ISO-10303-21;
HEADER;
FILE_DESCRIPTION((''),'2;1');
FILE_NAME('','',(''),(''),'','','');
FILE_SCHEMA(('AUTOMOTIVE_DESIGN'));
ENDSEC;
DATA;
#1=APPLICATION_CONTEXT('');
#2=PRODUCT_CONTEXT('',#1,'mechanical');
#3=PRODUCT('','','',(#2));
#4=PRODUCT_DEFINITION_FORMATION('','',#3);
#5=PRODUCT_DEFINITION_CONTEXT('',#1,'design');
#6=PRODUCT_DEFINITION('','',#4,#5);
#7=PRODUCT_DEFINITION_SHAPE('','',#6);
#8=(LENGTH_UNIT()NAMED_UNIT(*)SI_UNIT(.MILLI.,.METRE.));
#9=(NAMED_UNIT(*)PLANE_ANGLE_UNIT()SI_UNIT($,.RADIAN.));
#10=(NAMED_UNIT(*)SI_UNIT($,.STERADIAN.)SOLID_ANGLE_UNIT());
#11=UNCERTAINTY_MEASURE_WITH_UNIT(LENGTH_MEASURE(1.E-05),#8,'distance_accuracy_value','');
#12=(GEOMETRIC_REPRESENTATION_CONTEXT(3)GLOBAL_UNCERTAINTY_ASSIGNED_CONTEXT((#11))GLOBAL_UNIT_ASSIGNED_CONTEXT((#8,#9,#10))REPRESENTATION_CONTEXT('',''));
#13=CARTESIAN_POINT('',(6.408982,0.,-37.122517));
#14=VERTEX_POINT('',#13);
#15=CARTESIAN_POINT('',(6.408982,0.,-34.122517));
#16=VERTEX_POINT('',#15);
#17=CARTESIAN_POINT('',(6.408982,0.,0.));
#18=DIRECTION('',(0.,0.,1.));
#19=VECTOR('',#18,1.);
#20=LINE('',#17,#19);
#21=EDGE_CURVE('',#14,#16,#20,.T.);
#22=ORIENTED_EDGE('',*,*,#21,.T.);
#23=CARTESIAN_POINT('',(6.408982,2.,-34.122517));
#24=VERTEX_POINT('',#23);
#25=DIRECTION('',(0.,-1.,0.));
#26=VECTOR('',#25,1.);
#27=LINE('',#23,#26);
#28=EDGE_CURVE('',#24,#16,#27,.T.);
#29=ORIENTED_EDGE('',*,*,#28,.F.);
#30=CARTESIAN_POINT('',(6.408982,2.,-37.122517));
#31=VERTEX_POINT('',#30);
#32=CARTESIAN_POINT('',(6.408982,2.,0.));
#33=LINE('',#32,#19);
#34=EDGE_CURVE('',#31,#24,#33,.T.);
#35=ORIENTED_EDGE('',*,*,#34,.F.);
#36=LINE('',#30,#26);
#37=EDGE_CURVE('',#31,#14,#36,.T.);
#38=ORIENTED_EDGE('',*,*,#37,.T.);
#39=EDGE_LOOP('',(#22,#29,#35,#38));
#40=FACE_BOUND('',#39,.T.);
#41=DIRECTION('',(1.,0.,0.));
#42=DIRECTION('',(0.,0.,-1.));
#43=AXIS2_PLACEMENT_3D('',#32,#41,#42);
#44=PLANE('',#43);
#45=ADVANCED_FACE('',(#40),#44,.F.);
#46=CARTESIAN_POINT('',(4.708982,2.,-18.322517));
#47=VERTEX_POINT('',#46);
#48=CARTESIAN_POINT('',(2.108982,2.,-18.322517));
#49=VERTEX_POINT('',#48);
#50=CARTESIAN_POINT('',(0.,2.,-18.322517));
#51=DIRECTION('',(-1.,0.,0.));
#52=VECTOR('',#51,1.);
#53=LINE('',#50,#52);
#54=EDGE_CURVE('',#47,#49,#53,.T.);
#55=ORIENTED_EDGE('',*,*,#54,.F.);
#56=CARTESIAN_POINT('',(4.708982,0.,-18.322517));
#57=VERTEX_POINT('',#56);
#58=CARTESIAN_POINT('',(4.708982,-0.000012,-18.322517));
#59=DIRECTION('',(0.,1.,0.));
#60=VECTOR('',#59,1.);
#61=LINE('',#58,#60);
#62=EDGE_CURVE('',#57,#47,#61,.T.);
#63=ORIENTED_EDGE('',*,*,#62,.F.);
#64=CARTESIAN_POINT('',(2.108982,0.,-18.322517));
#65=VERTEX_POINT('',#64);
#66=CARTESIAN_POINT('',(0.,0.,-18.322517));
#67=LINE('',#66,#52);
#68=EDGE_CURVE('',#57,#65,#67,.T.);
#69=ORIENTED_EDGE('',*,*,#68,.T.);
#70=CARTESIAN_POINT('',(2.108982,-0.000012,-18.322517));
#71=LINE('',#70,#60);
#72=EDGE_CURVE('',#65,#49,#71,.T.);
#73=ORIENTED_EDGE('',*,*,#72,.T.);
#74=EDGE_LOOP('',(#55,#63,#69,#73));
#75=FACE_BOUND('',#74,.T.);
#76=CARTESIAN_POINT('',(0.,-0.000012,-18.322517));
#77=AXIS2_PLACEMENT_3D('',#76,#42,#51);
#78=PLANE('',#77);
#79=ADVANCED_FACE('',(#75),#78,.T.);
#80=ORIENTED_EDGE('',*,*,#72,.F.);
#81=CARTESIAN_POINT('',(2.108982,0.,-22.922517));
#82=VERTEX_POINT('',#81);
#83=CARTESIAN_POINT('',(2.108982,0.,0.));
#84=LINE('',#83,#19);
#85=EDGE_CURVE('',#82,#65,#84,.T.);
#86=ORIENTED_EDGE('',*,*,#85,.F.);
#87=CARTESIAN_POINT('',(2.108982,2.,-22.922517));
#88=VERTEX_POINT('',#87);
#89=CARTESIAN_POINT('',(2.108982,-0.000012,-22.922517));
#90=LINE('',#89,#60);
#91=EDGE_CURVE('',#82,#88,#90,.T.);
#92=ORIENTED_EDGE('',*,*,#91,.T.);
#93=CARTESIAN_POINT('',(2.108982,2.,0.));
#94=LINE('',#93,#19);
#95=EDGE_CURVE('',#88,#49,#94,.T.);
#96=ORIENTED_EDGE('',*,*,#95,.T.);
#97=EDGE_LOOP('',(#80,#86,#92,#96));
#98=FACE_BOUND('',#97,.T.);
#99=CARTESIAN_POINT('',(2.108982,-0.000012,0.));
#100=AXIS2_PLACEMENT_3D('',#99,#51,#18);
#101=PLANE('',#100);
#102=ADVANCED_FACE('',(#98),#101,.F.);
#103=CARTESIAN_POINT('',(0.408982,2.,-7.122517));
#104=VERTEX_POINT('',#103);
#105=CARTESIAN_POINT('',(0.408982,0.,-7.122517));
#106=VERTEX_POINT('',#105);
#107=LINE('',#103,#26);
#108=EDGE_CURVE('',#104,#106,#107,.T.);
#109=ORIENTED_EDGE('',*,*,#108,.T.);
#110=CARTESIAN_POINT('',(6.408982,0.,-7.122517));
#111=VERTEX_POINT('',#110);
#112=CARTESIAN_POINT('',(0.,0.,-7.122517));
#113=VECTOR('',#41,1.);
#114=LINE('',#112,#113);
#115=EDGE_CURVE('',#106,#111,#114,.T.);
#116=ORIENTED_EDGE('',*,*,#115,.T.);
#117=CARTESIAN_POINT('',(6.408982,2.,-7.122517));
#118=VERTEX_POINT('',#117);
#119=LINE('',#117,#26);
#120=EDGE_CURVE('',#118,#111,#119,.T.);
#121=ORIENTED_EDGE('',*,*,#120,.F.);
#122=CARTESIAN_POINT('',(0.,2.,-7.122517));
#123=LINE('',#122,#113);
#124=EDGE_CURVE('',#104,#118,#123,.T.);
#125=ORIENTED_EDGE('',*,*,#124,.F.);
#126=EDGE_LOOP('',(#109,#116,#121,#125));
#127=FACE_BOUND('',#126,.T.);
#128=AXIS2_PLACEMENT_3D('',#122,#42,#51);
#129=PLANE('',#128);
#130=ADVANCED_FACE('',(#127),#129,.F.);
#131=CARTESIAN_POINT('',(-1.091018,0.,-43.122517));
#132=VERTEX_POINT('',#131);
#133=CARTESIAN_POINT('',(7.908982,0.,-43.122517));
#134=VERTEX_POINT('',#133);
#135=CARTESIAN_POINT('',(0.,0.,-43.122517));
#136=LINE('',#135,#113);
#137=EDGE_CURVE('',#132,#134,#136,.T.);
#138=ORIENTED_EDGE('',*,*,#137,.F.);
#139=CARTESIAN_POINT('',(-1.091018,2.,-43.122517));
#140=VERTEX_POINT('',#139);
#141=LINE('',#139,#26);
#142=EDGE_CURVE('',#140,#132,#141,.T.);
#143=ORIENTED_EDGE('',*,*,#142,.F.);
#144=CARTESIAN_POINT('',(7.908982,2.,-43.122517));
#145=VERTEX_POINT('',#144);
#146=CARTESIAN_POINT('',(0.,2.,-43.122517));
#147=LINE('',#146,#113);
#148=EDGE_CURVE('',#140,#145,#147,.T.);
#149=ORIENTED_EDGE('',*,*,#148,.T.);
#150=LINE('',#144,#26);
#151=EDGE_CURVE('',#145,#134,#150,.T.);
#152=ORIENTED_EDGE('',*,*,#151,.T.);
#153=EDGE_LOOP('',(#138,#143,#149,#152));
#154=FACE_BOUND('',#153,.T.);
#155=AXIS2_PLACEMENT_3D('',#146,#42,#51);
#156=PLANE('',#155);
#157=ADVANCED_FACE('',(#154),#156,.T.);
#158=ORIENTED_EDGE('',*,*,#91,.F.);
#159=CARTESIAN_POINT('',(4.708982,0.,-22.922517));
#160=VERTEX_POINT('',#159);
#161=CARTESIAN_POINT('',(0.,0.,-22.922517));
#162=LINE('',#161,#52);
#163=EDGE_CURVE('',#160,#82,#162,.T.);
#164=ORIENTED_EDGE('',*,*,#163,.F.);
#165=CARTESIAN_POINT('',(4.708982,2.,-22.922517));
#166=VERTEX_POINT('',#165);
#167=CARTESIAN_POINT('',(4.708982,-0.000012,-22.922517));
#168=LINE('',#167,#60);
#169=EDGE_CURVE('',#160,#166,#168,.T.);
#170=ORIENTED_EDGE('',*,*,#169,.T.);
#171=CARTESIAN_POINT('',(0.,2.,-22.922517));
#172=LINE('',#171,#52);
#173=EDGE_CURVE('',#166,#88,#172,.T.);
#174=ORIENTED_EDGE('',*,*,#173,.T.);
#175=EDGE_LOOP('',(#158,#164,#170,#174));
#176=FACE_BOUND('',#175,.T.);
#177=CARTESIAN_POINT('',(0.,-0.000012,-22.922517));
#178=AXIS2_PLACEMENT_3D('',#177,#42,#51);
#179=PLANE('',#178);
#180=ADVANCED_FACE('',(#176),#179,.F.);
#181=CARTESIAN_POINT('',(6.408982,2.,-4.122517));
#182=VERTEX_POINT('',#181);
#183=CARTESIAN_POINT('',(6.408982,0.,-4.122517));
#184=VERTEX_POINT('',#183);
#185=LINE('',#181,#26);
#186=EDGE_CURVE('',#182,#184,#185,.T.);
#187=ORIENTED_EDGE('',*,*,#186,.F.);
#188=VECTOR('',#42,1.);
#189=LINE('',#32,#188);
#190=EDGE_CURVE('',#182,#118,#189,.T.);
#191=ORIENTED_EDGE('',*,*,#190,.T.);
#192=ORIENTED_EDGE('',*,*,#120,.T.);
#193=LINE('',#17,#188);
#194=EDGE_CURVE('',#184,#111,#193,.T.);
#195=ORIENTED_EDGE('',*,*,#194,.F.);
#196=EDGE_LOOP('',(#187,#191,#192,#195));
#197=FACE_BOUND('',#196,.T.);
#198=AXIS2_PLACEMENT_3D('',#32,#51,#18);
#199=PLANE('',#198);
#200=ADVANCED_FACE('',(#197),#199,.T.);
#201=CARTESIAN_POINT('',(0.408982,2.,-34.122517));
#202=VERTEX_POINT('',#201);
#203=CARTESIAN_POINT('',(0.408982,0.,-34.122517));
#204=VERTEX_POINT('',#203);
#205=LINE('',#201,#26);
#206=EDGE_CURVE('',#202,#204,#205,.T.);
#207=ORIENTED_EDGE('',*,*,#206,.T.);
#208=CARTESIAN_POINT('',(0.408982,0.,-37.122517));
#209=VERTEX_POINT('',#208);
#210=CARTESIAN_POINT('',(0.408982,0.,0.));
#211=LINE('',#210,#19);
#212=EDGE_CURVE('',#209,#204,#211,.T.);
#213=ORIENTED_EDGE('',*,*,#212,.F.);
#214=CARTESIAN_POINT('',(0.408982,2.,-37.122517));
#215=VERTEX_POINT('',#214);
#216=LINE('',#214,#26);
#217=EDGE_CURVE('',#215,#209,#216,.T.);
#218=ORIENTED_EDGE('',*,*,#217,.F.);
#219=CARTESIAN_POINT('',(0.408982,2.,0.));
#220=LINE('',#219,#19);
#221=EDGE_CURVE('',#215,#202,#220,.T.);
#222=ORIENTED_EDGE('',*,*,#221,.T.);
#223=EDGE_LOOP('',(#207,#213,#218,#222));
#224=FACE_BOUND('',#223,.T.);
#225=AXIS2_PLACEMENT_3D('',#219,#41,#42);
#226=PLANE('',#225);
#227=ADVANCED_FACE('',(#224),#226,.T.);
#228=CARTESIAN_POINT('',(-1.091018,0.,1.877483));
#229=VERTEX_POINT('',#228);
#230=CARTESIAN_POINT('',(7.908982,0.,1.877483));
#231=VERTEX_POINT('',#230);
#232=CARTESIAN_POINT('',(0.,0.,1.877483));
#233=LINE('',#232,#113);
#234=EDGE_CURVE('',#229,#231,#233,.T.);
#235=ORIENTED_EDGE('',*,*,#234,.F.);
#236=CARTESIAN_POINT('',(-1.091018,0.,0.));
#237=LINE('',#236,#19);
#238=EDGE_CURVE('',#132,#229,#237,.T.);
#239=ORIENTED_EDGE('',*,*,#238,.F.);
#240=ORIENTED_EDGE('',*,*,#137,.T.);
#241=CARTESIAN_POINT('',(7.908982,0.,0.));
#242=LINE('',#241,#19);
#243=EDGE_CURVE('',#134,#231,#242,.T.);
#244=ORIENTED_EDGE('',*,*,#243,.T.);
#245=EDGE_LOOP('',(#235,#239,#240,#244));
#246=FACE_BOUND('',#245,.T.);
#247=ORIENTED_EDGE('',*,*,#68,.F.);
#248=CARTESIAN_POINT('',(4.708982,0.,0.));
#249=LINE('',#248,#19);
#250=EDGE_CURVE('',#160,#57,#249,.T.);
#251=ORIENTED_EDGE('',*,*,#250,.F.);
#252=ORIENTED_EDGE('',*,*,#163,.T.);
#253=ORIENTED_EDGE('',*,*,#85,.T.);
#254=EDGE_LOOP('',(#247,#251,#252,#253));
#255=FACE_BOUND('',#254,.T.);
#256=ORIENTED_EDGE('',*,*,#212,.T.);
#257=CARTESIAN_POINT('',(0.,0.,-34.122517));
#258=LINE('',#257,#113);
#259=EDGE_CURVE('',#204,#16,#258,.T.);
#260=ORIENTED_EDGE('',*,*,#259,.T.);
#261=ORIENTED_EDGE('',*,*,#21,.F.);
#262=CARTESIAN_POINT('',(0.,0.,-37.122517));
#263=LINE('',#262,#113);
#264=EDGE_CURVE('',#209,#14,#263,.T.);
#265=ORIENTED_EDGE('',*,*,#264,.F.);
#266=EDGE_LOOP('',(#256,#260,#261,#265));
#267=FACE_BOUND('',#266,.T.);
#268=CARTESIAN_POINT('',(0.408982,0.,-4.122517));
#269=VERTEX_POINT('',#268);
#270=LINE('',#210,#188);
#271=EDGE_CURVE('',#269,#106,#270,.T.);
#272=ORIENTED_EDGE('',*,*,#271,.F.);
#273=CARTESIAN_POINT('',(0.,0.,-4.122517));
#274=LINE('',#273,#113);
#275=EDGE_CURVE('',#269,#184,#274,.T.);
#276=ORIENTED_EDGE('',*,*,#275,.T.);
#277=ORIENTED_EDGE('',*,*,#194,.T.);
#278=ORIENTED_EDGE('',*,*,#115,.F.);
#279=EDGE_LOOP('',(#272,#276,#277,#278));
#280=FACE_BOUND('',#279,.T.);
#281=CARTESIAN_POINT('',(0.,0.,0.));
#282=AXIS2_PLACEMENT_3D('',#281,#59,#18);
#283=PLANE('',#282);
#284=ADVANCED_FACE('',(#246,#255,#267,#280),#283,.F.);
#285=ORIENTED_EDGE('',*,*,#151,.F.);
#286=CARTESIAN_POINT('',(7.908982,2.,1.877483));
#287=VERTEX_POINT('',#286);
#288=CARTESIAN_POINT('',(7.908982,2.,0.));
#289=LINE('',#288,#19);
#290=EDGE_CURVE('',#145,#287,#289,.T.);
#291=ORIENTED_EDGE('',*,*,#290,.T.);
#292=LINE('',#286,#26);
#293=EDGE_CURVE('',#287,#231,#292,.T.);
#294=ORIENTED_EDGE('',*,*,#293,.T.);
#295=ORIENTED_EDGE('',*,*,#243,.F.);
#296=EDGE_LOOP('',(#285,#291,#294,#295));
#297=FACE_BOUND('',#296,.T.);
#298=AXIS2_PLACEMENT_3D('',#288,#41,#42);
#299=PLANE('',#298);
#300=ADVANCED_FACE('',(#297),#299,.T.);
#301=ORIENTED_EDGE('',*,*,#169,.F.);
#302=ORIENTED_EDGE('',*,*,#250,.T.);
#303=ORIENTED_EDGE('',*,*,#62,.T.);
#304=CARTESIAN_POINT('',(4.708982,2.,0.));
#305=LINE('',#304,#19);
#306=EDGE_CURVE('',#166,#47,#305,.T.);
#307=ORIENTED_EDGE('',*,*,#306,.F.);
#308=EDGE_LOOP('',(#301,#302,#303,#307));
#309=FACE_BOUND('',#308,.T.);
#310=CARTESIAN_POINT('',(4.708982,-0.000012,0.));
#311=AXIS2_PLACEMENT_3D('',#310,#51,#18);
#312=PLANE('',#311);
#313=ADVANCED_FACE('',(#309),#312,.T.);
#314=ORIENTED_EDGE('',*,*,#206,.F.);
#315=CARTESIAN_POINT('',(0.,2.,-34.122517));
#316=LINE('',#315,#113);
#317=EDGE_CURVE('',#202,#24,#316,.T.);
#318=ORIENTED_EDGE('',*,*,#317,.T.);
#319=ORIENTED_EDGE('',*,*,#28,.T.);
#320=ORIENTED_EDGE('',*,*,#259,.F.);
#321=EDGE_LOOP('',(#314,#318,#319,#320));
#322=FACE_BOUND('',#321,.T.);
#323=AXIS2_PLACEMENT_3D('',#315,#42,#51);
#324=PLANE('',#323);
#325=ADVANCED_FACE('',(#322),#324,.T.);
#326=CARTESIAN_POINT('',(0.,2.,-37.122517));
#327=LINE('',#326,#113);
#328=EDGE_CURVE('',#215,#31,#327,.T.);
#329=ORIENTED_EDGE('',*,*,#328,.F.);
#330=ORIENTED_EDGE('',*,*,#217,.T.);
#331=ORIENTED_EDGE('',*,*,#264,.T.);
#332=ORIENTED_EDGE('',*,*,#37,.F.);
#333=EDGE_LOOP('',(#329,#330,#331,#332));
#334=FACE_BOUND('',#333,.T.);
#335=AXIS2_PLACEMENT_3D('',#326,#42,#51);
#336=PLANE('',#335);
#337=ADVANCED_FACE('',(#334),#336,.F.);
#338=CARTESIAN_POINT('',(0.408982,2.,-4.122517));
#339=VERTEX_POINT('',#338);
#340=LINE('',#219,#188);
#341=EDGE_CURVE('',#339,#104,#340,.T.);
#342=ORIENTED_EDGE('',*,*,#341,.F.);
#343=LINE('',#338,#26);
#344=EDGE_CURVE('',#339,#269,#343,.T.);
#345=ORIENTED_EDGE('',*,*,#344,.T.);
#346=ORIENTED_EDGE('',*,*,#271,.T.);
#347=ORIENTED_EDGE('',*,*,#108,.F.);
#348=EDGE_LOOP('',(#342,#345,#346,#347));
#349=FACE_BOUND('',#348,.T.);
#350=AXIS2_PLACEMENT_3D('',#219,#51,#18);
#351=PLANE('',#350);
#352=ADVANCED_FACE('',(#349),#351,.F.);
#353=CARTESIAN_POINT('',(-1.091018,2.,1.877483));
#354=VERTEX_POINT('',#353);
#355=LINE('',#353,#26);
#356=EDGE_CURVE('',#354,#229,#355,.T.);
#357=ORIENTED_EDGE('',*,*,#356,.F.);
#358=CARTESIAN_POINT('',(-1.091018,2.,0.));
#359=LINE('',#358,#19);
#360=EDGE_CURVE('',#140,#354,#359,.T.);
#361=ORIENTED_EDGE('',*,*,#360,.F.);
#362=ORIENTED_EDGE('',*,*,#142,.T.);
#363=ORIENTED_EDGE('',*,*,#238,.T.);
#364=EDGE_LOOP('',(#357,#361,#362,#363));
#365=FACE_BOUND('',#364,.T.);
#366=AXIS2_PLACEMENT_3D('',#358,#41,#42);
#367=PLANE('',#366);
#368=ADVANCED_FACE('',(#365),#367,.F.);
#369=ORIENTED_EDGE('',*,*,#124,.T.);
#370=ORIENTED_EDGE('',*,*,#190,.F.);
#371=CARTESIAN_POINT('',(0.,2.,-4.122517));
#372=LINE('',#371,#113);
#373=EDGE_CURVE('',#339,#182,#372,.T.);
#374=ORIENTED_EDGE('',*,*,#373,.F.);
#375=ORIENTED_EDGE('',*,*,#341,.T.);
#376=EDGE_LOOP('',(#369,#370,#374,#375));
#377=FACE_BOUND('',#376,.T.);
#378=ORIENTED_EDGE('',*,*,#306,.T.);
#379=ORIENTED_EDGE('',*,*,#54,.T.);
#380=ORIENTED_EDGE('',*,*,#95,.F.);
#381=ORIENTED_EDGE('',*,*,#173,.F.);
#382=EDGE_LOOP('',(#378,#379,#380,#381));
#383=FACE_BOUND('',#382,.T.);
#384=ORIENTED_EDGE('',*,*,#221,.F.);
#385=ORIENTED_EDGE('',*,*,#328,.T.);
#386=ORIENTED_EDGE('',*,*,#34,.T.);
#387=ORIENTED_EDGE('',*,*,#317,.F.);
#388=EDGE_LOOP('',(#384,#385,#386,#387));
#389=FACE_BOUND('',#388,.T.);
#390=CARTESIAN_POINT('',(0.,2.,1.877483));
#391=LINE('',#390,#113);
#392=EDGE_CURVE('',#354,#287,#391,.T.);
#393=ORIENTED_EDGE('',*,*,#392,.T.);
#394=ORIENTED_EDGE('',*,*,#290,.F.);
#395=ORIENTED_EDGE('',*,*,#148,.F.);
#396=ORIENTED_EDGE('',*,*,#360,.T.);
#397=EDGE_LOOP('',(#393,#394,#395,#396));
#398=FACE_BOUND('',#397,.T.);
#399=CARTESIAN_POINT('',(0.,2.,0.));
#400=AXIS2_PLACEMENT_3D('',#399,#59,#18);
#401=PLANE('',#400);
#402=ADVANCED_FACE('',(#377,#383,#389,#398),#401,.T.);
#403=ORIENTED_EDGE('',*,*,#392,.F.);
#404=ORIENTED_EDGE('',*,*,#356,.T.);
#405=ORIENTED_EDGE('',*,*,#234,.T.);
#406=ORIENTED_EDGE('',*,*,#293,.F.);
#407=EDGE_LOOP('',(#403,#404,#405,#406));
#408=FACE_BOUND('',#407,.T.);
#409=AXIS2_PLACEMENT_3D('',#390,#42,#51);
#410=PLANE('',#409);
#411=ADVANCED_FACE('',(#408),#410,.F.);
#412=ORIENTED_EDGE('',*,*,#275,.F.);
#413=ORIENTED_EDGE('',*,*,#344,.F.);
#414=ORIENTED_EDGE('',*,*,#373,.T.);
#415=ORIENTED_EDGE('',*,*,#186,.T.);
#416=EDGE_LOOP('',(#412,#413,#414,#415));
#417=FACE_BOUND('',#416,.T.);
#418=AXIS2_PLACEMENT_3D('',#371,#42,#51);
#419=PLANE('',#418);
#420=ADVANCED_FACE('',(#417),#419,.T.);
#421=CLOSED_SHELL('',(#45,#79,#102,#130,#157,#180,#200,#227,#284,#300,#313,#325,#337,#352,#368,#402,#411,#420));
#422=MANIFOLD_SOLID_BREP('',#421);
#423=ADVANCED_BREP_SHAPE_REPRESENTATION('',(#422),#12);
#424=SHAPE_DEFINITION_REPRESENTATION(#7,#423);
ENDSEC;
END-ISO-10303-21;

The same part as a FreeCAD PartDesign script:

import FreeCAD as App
import Part
import Sketcher
Q = App.Units.Quantity


def add_polygon(sketch, points):
    """Adds a closed chain of lines whose ends are joined by coincident constraints."""
    first, n = sketch.GeometryCount, len(points)
    for a, b in zip(points, points[1:] + points[:1]):
        sketch.addGeometry(Part.LineSegment(App.Vector(*a, 0), App.Vector(*b, 0)), False)
    for i in range(n):
        sketch.addConstraint(Sketcher.Constraint("Coincident", first + i, 2, first + (i + 1) % n, 1))

doc = App.newDocument("Part")
params = doc.addObject("Spreadsheet::Sheet", "Params")
for row, (alias, value) in enumerate([
    ("sketch1_width", "9 mm"),
    ("sketch1_width2", "6 mm"),
    ("sketch1_height", "45 mm"),
    ("sketch1_height2", "3 mm"),
    ("pad1_length", "2 mm"),
    ("sketch2_width", "2.6 mm"),
    ("sketch2_height", "4.6 mm"),
], start=1):
    params.set(f"A{row}", alias)
    params.set(f"B{row}", "=" + value)
    params.setAlias(f"B{row}", alias)

body = doc.addObject("PartDesign::Body", "Body")

# Sketch on XZ plane
sketch1 = body.newObject("Sketcher::SketchObject", "Sketch")
sketch1.AttachmentSupport = (doc.getObject("XZ_Plane"), [""])
sketch1.MapMode = "FlatFace"
add_polygon(sketch1, [(-1.1, -43.1), (-1.1, 1.9), (7.9, 1.9), (7.9, -43.1)])  # lines 0-3
add_polygon(sketch1, [(6.4, -4.1), (0.4, -4.1), (0.4, -7.1), (6.4, -7.1)])  # lines 4-7
add_polygon(sketch1, [(6.4, -34.1), (0.4, -34.1), (0.4, -37.1), (6.4, -37.1)])  # lines 8-11
sketch1.addConstraint([
    Sketcher.Constraint("Vertical", 0),
    Sketcher.Constraint("Horizontal", 1),
    Sketcher.Constraint("Vertical", 2),
    Sketcher.Constraint("Horizontal", 3),
    Sketcher.Constraint("Horizontal", 4),
    Sketcher.Constraint("Vertical", 5),
    Sketcher.Constraint("Horizontal", 6),
    Sketcher.Constraint("Vertical", 7),
    Sketcher.Constraint("Horizontal", 8),
    Sketcher.Constraint("Vertical", 9),
    Sketcher.Constraint("Horizontal", 10),
    Sketcher.Constraint("Vertical", 11),
    Sketcher.Constraint("Vertical", 5, 2, 8, 2),
    Sketcher.Constraint("Vertical", 7, 2, 10, 2),
    Sketcher.Constraint("Equal", 7, 9),
    Sketcher.Constraint("DistanceX", 1, 1, 1, 2, Q("9 mm")),
    Sketcher.Constraint("DistanceX", 4, 2, 4, 1, Q("6 mm")),
    Sketcher.Constraint("DistanceY", 0, 1, 0, 2, Q("45 mm")),
    Sketcher.Constraint("DistanceY", 5, 2, 5, 1, Q("3 mm")),
    Sketcher.Constraint("DistanceY", 4, 2, 0, 2, Q("6 mm")),
    Sketcher.Constraint("DistanceY", 3, 2, 8, 2, Q("9 mm")),
    Sketcher.Constraint("DistanceX", 0, 2, 4, 2, Q("1.5 mm")),
    Sketcher.Constraint("DistanceX", 0, 2, -1, 1, Q("1.091018 mm")),
    Sketcher.Constraint("DistanceY", -1, 1, 0, 2, Q("1.877483 mm")),
])
sketch1.setExpression("Constraints[27]", "Params.sketch1_width")
sketch1.setExpression("Constraints[28]", "Params.sketch1_width2")
sketch1.setExpression("Constraints[29]", "Params.sketch1_height")
sketch1.setExpression("Constraints[30]", "Params.sketch1_height2")
pad1 = body.newObject("PartDesign::Pad", "Pad")
pad1.Profile = sketch1
pad1.setExpression("Length", "Params.pad1_length")
pad1.Reversed = True

# Sketch on XZ plane
sketch2 = body.newObject("Sketcher::SketchObject", "Sketch001")
sketch2.AttachmentSupport = (doc.getObject("XZ_Plane"), [""])
sketch2.MapMode = "FlatFace"
add_polygon(sketch2, [(2.1, -18.3), (2.1, -22.9), (4.7, -22.9), (4.7, -18.3)])  # lines 0-3
sketch2.addConstraint([
    Sketcher.Constraint("Vertical", 0),
    Sketcher.Constraint("Horizontal", 1),
    Sketcher.Constraint("Vertical", 2),
    Sketcher.Constraint("Horizontal", 3),
    Sketcher.Constraint("DistanceX", 1, 1, 1, 2, Q("2.6 mm")),
    Sketcher.Constraint("DistanceY", 0, 2, 0, 1, Q("4.6 mm")),
    Sketcher.Constraint("DistanceX", -1, 1, 0, 2, Q("2.108982 mm")),
    Sketcher.Constraint("DistanceY", 0, 2, -1, 1, Q("22.922517 mm")),
])
sketch2.setExpression("Constraints[8]", "Params.sketch2_width")
sketch2.setExpression("Constraints[9]", "Params.sketch2_height")
pocket1 = body.newObject("PartDesign::Pocket", "Pocket")
pocket1.Profile = sketch2
pocket1.Type = "ThroughAll"
pocket1.Midplane = True

doc.recompute()
